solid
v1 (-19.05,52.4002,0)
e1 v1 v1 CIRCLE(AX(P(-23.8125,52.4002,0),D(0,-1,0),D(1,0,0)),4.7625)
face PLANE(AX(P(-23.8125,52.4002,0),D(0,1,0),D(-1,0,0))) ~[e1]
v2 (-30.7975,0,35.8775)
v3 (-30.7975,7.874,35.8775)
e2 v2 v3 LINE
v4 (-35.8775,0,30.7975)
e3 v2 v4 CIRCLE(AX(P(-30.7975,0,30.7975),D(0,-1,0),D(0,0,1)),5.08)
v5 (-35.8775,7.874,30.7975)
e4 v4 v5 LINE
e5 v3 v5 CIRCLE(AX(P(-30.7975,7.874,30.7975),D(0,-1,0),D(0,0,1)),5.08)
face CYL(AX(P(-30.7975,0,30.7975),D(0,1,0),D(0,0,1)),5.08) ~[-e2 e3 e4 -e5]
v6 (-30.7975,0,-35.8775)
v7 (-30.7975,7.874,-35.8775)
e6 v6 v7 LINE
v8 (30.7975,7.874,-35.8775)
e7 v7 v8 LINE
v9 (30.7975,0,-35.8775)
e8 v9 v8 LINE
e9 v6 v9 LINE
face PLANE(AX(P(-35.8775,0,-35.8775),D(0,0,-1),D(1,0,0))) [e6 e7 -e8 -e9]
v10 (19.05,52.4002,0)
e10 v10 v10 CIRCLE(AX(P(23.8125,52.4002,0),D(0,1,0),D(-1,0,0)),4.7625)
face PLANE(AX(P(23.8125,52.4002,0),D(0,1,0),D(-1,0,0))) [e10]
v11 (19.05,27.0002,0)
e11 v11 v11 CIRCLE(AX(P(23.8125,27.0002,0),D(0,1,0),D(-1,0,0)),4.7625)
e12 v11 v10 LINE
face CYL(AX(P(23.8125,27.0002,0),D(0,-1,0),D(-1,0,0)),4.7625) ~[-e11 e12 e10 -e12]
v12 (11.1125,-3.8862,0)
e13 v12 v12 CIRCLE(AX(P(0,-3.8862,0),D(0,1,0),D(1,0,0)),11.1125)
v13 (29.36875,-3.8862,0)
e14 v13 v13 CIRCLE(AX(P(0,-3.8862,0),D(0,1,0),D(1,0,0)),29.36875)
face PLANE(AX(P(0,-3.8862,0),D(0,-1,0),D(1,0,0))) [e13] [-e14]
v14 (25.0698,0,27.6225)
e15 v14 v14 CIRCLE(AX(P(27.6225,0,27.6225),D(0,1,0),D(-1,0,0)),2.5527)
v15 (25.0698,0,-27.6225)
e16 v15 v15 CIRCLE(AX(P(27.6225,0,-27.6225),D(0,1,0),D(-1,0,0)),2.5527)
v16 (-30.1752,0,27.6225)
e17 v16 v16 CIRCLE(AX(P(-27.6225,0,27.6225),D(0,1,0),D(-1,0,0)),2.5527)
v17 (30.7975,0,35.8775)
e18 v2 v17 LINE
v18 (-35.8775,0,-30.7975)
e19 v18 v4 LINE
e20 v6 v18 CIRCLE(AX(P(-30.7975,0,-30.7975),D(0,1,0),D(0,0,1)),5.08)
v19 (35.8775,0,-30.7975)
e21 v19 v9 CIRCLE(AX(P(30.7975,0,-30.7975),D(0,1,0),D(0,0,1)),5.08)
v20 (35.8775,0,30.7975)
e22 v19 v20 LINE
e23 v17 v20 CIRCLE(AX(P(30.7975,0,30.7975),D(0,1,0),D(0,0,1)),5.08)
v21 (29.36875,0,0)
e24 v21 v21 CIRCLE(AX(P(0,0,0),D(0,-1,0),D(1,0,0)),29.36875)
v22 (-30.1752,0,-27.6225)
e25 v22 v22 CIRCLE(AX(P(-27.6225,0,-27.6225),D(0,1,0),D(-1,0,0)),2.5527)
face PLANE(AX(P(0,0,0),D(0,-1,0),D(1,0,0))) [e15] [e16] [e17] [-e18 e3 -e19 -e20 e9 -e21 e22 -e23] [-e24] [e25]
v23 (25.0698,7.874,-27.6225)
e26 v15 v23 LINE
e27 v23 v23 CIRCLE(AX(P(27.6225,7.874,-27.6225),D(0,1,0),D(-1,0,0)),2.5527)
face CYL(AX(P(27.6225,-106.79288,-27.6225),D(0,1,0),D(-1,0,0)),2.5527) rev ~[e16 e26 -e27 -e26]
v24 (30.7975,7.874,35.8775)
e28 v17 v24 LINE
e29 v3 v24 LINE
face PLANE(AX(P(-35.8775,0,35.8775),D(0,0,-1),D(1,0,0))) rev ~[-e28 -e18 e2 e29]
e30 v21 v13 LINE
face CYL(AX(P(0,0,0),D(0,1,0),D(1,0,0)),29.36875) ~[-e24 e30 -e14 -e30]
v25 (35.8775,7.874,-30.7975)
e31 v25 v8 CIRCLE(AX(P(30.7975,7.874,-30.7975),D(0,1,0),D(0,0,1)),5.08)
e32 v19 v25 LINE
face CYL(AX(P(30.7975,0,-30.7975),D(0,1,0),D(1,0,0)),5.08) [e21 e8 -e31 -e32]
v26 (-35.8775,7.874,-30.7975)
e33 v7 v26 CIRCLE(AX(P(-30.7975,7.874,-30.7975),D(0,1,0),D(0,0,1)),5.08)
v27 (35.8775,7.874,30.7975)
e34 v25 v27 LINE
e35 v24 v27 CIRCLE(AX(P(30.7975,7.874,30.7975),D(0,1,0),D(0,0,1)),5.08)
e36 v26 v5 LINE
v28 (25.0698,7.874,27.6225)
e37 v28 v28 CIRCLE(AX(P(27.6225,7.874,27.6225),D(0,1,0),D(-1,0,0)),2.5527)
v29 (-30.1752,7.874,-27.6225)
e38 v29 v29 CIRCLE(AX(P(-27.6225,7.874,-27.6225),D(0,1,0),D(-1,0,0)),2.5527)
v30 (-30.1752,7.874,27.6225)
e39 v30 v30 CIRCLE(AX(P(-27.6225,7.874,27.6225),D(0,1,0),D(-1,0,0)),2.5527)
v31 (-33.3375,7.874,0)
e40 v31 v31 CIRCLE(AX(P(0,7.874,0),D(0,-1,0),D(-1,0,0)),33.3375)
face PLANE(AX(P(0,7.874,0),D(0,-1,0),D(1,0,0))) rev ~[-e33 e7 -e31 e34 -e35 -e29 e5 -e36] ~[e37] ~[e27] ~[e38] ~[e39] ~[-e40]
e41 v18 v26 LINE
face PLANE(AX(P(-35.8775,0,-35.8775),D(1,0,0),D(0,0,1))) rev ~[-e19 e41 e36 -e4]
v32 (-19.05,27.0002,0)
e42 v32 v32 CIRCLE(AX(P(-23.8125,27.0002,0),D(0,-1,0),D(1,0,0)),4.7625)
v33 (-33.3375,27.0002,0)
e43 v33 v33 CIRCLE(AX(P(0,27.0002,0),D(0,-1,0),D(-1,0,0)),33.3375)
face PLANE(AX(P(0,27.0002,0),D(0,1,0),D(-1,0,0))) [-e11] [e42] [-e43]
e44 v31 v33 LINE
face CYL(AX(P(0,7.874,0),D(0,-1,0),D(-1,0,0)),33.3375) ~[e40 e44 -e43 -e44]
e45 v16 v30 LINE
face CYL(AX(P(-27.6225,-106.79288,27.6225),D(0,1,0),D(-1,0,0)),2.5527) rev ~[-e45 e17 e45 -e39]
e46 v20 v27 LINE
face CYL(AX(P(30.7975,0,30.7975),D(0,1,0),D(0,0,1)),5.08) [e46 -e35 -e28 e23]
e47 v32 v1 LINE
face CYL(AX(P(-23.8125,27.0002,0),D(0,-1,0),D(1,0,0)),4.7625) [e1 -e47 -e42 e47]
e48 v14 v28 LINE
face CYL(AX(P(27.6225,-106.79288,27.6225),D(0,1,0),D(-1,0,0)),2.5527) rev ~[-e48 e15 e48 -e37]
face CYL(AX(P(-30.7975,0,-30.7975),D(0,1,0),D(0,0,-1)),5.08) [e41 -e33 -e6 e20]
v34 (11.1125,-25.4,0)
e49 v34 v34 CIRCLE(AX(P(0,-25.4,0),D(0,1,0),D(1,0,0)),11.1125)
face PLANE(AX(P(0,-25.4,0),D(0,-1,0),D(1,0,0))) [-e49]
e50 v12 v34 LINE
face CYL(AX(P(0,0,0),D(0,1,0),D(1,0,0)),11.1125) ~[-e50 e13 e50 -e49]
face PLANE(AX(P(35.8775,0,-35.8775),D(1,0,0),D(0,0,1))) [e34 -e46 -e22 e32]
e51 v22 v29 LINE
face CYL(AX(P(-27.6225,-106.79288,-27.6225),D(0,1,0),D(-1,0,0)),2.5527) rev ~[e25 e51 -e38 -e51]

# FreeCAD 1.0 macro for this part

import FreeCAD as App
import Part
import Sketcher

V = App.Vector
Q = App.Units.Quantity


def edges_at(feature, points):
    """Names of the edges that pass closest to the given points."""
    edges = feature.Shape.Edges
    near = lambda p: min(range(len(edges)), key=lambda i: edges[i].distToShape(Part.Vertex(*p))[0])
    return sorted({f"Edge{near(p) + 1}" for p in points})


def add_polygon(sketch, points):
    """Adds a closed chain of lines whose ends are joined by coincident constraints."""
    first, n = sketch.GeometryCount, len(points)
    for a, b in zip(points, points[1:] + points[:1]):
        sketch.addGeometry(Part.LineSegment(App.Vector(*a, 0), App.Vector(*b, 0)), False)
    for i in range(n):
        sketch.addConstraint(Sketcher.Constraint("Coincident", first + i, 2, first + (i + 1) % n, 1))

doc = App.newDocument("Part")
body = doc.addObject("PartDesign::Body", "Body")

sketch1 = doc.addObject("Sketcher::SketchObject", "Sketch")
body.addObject(sketch1)
sketch1.AttachmentSupport = (doc.XZ_Plane, [""])
sketch1.MapMode = "FlatFace"
add_polygon(sketch1, [(-35.8775, 35.8775), (-35.8775, -35.8775), (35.8775, -35.8775), (35.8775, 35.8775)])
sketch1.addConstraint(Sketcher.Constraint("Vertical", 0))
sketch1.addConstraint(Sketcher.Constraint("Horizontal", 1))
sketch1.addConstraint(Sketcher.Constraint("Vertical", 2))
sketch1.addConstraint(Sketcher.Constraint("Horizontal", 3))
sketch1.addConstraint(Sketcher.Constraint("Symmetric", 0, 2, 2, 2, -1, 1))
sketch1.addConstraint(Sketcher.Constraint("Equal", 3, 0))
sketch1.addConstraint(Sketcher.Constraint("DistanceX", 1, 1, 1, 2, Q("2.825 in")))
pad1 = doc.addObject("PartDesign::Pad", "Pad")
body.addObject(pad1)
pad1.Profile = sketch1
pad1.Length = Q("0.31 in")
pad1.Reversed = True

sketch2 = doc.addObject("Sketcher::SketchObject", "Sketch001")
body.addObject(sketch2)
sketch2.AttachmentSupport = (doc.XZ_Plane, [""])
sketch2.MapMode = "FlatFace"
sketch2.addGeometry(Part.Circle(V(0, 0, 0), V(0, 0, 1), 11.1125), False)
sketch2.addConstraint(Sketcher.Constraint("Coincident", 0, 3, -1, 1))
sketch2.addConstraint(Sketcher.Constraint("Diameter", 0, Q("0.875 in")))
pad2 = doc.addObject("PartDesign::Pad", "Pad001")
body.addObject(pad2)
pad2.Profile = sketch2
pad2.Length = Q("1 in")

sketch3 = doc.addObject("Sketcher::SketchObject", "Sketch002")
body.addObject(sketch3)
sketch3.AttachmentSupport = (doc.XZ_Plane, [""])
sketch3.MapMode = "FlatFace"
sketch3.addGeometry(Part.Circle(V(27.6225, 27.6225, 0), V(0, 0, 1), 2.5527), False)
sketch3.addGeometry(Part.Circle(V(27.6225, -27.6225, 0), V(0, 0, 1), 2.5527), False)
sketch3.addGeometry(Part.Circle(V(-27.6225, -27.6225, 0), V(0, 0, 1), 2.5527), False)
sketch3.addGeometry(Part.Circle(V(-27.6225, 27.6225, 0), V(0, 0, 1), 2.5527), False)
sketch3.addConstraint(Sketcher.Constraint("Equal", 0, 1))
sketch3.addConstraint(Sketcher.Constraint("Equal", 1, 2))
sketch3.addConstraint(Sketcher.Constraint("Equal", 2, 3))
sketch3.addConstraint(Sketcher.Constraint("Symmetric", 0, 3, 2, 3, -1, 1))
sketch3.addConstraint(Sketcher.Constraint("Symmetric", 1, 3, 3, 3, -1, 1))
sketch3.addConstraint(Sketcher.Constraint("Symmetric", 1, 3, 2, 3, -2))
sketch3.addConstraint(Sketcher.Constraint("Diameter", 0, Q("0.201 in")))
sketch3.addConstraint(Sketcher.Constraint("DistanceY", 1, 3, 0, 3, Q("2.175 in")))
sketch3.addConstraint(Sketcher.Constraint("DistanceX", 2, 3, 1, 3, Q("2.175 in")))
doc.recompute()
hole = doc.addObject("PartDesign::Hole", "Hole")
body.addObject(hole)
hole.Profile = sketch3
hole.ThreadType = "None"
hole.Diameter = Q("0.201 in")
hole.DepthType = "ThroughAll"

sketch4 = doc.addObject("Sketcher::SketchObject", "Sketch003")
body.addObject(sketch4)
sketch4.AttachmentSupport = (doc.XZ_Plane, [""])
sketch4.MapMode = "FlatFace"
sketch4.AttachmentOffset = App.Placement(V(0, 0, -0.31 * 25.4), App.Rotation())
sketch4.addGeometry(Part.Circle(V(0, 0, 0), V(0, 0, 1), 33.3375), False)
sketch4.addConstraint(Sketcher.Constraint("Coincident", 0, 3, -1, 1))
sketch4.addConstraint(Sketcher.Constraint("Diameter", 0, Q("2.625 in")))
pad3 = doc.addObject("PartDesign::Pad", "Pad002")
body.addObject(pad3)
pad3.Profile = sketch4
pad3.Length = Q("0.753 in")
pad3.Reversed = True

sketch5 = doc.addObject("Sketcher::SketchObject", "Sketch004")
body.addObject(sketch5)
sketch5.AttachmentSupport = (doc.XZ_Plane, [""])
sketch5.MapMode = "FlatFace"
sketch5.AttachmentOffset = App.Placement(V(0, 0, -1.063 * 25.4), App.Rotation())
sketch5.addGeometry(Part.Circle(V(23.8125, 0, 0), V(0, 0, 1), 4.7625), False)
sketch5.addConstraint(Sketcher.Constraint("PointOnObject", 0, 3, -1))
sketch5.addConstraint(Sketcher.Constraint("Diameter", 0, Q("0.375 in")))
sketch5.addConstraint(Sketcher.Constraint("DistanceX", -1, 1, 0, 3, Q("0.9375 in")))
pad4 = doc.addObject("PartDesign::Pad", "Pad003")
body.addObject(pad4)
pad4.Profile = sketch5
pad4.Length = Q("1 in")
pad4.Reversed = True

sketch6 = doc.addObject("Sketcher::SketchObject", "Sketch005")
body.addObject(sketch6)
sketch6.AttachmentSupport = (doc.XZ_Plane, [""])
sketch6.MapMode = "FlatFace"
sketch6.addGeometry(Part.Circle(V(0, 0, 0), V(0, 0, 1), 29.36875), False)
sketch6.addConstraint(Sketcher.Constraint("Coincident", 0, 3, -1, 1))
sketch6.addConstraint(Sketcher.Constraint("Diameter", 0, Q("2.3125 in")))
pad5 = doc.addObject("PartDesign::Pad", "Pad004")
body.addObject(pad5)
pad5.Profile = sketch6
pad5.Length = Q("0.153 in")
body2 = doc.addObject("PartDesign::Body", "Body001")
doc.recompute()

body2.BaseFeature = body
doc.recompute()

mirroring = doc.addObject("Part::Mirroring", "Mirroring")
mirroring.Source = body
mirroring.Base = V(0, 0, 0)
mirroring.Normal = V(1, 0, 0)
body3 = doc.addObject("PartDesign::Body", "Body002")
body3.BaseFeature = mirroring
boolean = doc.addObject("PartDesign::Boolean", "Boolean")
body2.addObject(boolean)
boolean.Type = "Fuse"
boolean.addObjects([body3])
doc.recompute()

fillet = doc.addObject("PartDesign::Fillet", "Fillet")
body2.addObject(fillet)
fillet.Base = (boolean, edges_at(boolean, [
    (35.877, 3.937, 35.877),
    (35.877, 3.937, -35.877),
    (-35.877, 3.937, -35.877),
    (-35.877, 3.937, 35.877),
]))
fillet.Radius = Q("0.2 in")
mirroring.Visibility = False

doc.recompute()
